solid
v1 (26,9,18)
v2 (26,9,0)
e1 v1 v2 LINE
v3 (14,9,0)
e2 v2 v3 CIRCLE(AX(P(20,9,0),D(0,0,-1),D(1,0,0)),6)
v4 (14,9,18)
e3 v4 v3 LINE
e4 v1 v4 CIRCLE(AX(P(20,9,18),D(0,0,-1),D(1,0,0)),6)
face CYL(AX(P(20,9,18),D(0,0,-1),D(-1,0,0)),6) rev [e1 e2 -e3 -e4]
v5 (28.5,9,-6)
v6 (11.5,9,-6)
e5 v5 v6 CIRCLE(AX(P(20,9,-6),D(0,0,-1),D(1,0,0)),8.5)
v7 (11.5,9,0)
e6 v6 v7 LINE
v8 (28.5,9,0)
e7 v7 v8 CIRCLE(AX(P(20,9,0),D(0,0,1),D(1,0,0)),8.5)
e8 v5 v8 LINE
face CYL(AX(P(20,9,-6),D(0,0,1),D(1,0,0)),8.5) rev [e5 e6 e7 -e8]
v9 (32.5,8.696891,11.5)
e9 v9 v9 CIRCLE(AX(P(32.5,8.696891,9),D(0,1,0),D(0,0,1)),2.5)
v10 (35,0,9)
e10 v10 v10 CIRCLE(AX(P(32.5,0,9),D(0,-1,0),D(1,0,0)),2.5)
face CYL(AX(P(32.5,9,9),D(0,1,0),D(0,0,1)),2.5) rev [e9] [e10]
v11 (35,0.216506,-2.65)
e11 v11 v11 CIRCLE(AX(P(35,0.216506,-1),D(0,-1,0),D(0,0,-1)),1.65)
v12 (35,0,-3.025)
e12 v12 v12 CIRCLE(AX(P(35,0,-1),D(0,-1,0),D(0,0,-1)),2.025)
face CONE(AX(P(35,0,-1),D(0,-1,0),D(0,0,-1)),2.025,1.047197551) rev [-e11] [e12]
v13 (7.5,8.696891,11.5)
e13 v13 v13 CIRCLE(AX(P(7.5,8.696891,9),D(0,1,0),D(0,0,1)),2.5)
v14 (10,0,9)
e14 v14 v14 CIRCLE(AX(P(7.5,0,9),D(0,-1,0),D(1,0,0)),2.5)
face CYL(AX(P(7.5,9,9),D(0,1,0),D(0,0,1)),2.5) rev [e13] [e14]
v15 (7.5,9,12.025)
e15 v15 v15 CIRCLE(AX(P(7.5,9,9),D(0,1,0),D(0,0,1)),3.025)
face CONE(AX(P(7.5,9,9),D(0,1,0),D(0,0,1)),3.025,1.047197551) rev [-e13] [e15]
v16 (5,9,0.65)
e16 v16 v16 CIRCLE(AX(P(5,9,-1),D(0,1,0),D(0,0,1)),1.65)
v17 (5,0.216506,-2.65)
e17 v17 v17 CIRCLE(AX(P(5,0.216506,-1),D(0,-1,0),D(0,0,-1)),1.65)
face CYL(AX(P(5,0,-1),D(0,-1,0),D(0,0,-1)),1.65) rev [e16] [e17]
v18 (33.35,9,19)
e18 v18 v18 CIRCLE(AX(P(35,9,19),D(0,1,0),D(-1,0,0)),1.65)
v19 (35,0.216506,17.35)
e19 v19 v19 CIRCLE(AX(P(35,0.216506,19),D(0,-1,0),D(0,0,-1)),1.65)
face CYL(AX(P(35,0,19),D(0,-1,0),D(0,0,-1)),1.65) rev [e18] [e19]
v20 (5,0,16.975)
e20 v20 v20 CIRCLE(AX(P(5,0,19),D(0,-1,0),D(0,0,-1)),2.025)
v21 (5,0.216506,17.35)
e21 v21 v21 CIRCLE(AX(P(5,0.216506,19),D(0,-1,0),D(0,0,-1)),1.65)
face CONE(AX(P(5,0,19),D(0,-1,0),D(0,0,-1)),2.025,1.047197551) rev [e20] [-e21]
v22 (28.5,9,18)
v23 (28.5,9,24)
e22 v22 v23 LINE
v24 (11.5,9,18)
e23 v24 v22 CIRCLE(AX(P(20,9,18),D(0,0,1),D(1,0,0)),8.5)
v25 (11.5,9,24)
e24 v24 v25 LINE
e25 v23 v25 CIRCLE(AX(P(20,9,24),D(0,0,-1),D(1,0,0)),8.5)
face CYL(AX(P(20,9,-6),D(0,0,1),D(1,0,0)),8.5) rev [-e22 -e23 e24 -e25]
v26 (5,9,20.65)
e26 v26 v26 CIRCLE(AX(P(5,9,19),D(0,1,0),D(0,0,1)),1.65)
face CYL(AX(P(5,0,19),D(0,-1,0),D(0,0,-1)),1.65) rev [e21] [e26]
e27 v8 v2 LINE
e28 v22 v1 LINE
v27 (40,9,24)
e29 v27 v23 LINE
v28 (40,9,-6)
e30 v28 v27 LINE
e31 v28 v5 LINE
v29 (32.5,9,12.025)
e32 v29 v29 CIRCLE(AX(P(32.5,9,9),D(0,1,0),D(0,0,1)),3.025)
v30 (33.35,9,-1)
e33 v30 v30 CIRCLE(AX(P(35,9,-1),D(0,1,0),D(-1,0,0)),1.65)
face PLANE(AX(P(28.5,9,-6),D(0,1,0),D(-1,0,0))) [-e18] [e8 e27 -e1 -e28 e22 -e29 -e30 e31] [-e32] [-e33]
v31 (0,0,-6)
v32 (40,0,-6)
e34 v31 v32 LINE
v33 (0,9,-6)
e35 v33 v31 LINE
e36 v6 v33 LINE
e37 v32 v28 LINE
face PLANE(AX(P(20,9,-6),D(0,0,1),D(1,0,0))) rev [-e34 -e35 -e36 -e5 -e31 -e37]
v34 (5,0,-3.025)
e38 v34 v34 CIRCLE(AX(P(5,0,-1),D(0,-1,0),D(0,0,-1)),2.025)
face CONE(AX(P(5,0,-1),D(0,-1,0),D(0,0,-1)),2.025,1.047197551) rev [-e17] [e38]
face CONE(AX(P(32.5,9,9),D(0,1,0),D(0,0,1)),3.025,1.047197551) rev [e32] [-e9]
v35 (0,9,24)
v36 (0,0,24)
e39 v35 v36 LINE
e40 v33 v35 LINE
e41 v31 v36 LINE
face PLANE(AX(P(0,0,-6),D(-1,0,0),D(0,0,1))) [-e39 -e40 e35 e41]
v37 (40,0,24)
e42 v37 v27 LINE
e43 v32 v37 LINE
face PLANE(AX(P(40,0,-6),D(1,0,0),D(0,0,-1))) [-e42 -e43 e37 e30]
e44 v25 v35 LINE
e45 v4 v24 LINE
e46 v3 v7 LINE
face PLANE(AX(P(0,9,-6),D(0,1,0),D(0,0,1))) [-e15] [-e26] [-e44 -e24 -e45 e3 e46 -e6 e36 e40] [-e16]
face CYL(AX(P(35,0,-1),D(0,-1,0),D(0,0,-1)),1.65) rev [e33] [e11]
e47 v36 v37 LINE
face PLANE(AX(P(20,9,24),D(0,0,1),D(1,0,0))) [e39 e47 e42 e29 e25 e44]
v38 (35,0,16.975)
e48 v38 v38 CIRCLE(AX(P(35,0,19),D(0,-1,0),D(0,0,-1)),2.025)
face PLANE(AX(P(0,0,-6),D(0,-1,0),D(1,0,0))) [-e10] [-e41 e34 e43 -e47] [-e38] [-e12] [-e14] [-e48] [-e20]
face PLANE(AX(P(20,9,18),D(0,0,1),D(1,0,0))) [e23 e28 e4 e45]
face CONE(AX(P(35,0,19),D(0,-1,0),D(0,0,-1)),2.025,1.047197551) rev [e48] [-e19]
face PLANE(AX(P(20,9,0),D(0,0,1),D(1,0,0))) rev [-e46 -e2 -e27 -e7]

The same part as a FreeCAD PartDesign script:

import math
import FreeCAD as App
import Part
import Sketcher

doc = App.newDocument("Part")
body = doc.addObject("PartDesign::Body", "Body")

# Sketch on XY plane
sketch1 = body.newObject("Sketcher::SketchObject", "Sketch")
sketch1.AttachmentSupport = (doc.getObject("XY_Plane"), [""])
sketch1.MapMode = "FlatFace"
sketch1.addGeometry(Part.LineSegment(App.Vector(40, 9, 0), App.Vector(28, 9, 0)), False)
sketch1.addGeometry(Part.ArcOfCircle(Part.Circle(App.Vector(20, 9, 0), App.Vector(0, 0, 1), 8), math.radians(180), math.radians(360)), False)
sketch1.addGeometry(Part.LineSegment(App.Vector(12, 9, 0), App.Vector(0, 9, 0)), False)
sketch1.addGeometry(Part.LineSegment(App.Vector(0, 9, 0), App.Vector(0, 0, 0)), False)
sketch1.addGeometry(Part.LineSegment(App.Vector(0, 0, 0), App.Vector(40, 0, 0)), False)
sketch1.addGeometry(Part.LineSegment(App.Vector(40, 0, 0), App.Vector(40, 9, 0)), False)
sketch1.addConstraint(Sketcher.Constraint("Coincident", 0, 2, 1, 2))
sketch1.addConstraint(Sketcher.Constraint("Coincident", 1, 1, 2, 1))
sketch1.addConstraint(Sketcher.Constraint("Coincident", 2, 2, 3, 1))
sketch1.addConstraint(Sketcher.Constraint("Coincident", 3, 2, 4, 1))
sketch1.addConstraint(Sketcher.Constraint("Coincident", 4, 2, 5, 1))
sketch1.addConstraint(Sketcher.Constraint("Coincident", 5, 2, 0, 1))
sketch1.addConstraint(Sketcher.Constraint("Horizontal", 0))
sketch1.addConstraint(Sketcher.Constraint("Horizontal", 2))
sketch1.addConstraint(Sketcher.Constraint("Vertical", 3))
sketch1.addConstraint(Sketcher.Constraint("Horizontal", 4))
sketch1.addConstraint(Sketcher.Constraint("Vertical", 5))
sketch1.addConstraint(Sketcher.Constraint("Coincident", 3, 2, -1, 1))
sketch1.addConstraint(Sketcher.Constraint("Horizontal", 1, 3, 0, 2))
sketch1.addConstraint(Sketcher.Constraint("Horizontal", 0, 2, 1, 1))
sketch1.addConstraint(Sketcher.Constraint("Equal", 0, 2))
sketch1.addConstraint(Sketcher.Constraint("Radius", 1, 8.5))
sketch1.addConstraint(Sketcher.Constraint("DistanceX", 4, 1, 4, 2, 40.0))
sketch1.addConstraint(Sketcher.Constraint("DistanceY", 3, 2, 3, 1, 9.0))
pad1 = body.newObject("PartDesign::Pad", "Pad")
pad1.Profile = sketch1
pad1.Type = "TwoLengths"
pad1.Length = 24
pad1.Length2 = 6

# Sketch on XY plane
sketch2 = body.newObject("Sketcher::SketchObject", "Sketch001")
sketch2.AttachmentSupport = (doc.getObject("XY_Plane"), [""])
sketch2.MapMode = "FlatFace"
sketch2.addGeometry(Part.LineSegment(App.Vector(14, 9, 0), App.Vector(11.5, 9, 0)), False)
sketch2.addGeometry(Part.ArcOfCircle(Part.Circle(App.Vector(20, 9, 0), App.Vector(0, 0, 1), 8.5), math.radians(180), math.radians(360)), False)
sketch2.addGeometry(Part.LineSegment(App.Vector(28.5, 9, 0), App.Vector(26, 9, 0)), False)
sketch2.addGeometry(Part.ArcOfCircle(Part.Circle(App.Vector(20, 9, 0), App.Vector(0, 0, 1), 6), math.radians(180), math.radians(360)), False)
sketch2.addConstraint(Sketcher.Constraint("Coincident", 0, 2, 1, 1))
sketch2.addConstraint(Sketcher.Constraint("Coincident", 1, 2, 2, 1))
sketch2.addConstraint(Sketcher.Constraint("Coincident", 2, 2, 3, 2))
sketch2.addConstraint(Sketcher.Constraint("Coincident", 3, 1, 0, 1))
sketch2.addConstraint(Sketcher.Constraint("Horizontal", 0))
sketch2.addConstraint(Sketcher.Constraint("Horizontal", 2))
sketch2.addConstraint(Sketcher.Constraint("Coincident", 3, 3, 1, 3))
sketch2.addConstraint(Sketcher.Constraint("Horizontal", 3, 3, 0, 2))
sketch2.addConstraint(Sketcher.Constraint("Horizontal", 0, 2, 1, 2))
sketch2.addConstraint(Sketcher.Constraint("Radius", 3, 6.0))
sketch2.addConstraint(Sketcher.Constraint("Radius", 1, 8.5))
sketch2.addConstraint(Sketcher.Constraint("DistanceX", -1, 1, 1, 3, 20.0))
sketch2.addConstraint(Sketcher.Constraint("DistanceY", -1, 1, 1, 3, 9.0))
pad2 = body.newObject("PartDesign::Pad", "Pad001")
pad2.Profile = sketch2
pad2.Length = 18

# Sketch on XZ plane
sketch3 = body.newObject("Sketcher::SketchObject", "Sketch002")
sketch3.AttachmentSupport = (doc.getObject("XZ_Plane"), [""])
sketch3.MapMode = "FlatFace"
sketch3.addGeometry(Part.Circle(App.Vector(35, 19, 0), App.Vector(0, 0, 1), 1.6), False)
sketch3.addGeometry(Part.Circle(App.Vector(35, -1, 0), App.Vector(0, 0, 1), 1.6), False)
sketch3.addGeometry(Part.Circle(App.Vector(5, 19, 0), App.Vector(0, 0, 1), 1.6), False)
sketch3.addGeometry(Part.Circle(App.Vector(5, -1, 0), App.Vector(0, 0, 1), 1.6), False)
sketch3.addConstraint(Sketcher.Constraint("Equal", 0, 1))
sketch3.addConstraint(Sketcher.Constraint("Equal", 1, 2))
sketch3.addConstraint(Sketcher.Constraint("Equal", 2, 3))
sketch3.addConstraint(Sketcher.Constraint("Horizontal", 0, 3, 2, 3))
sketch3.addConstraint(Sketcher.Constraint("Horizontal", 1, 3, 3, 3))
sketch3.addConstraint(Sketcher.Constraint("Vertical", 0, 3, 1, 3))
sketch3.addConstraint(Sketcher.Constraint("Vertical", 2, 3, 3, 3))
sketch3.addConstraint(Sketcher.Constraint("Diameter", 0, 3.3))
sketch3.addConstraint(Sketcher.Constraint("DistanceX", -1, 1, 0, 3, 35.0))
sketch3.addConstraint(Sketcher.Constraint("DistanceY", -1, 1, 0, 3, 19.0))
sketch3.addConstraint(Sketcher.Constraint("DistanceY", 1, 3, -1, 1, 1.0))
sketch3.addConstraint(Sketcher.Constraint("DistanceX", -1, 1, 2, 3, 5.0))
doc.recompute()
hole = body.newObject("PartDesign::Hole", "Hole")
hole.Profile = sketch3
hole.ThreadType = "None"
hole.Diameter = 3.3
hole.DepthType = "Dimension"
hole.Depth = 11.5
hole.DrillPoint = "Angled"
hole.DrillPointAngle = 118
hole.HoleCutType = "Countersink"
hole.HoleCutDiameter = 4.05
hole.HoleCutCountersinkAngle = 120

# Sketch on XZ plane
sketch4 = body.newObject("Sketcher::SketchObject", "Sketch003")
sketch4.AttachmentSupport = (doc.getObject("XZ_Plane"), [""])
sketch4.MapMode = "FlatFace"
sketch4.AttachmentOffset = App.Placement(App.Vector(0, 0, -9), App.Rotation())
sketch4.addGeometry(Part.Circle(App.Vector(32.5, 9, 0), App.Vector(0, 0, 1), 2.5), False)
sketch4.addGeometry(Part.Circle(App.Vector(7.5, 9, 0), App.Vector(0, 0, 1), 2.5), False)
sketch4.addConstraint(Sketcher.Constraint("Equal", 0, 1))
sketch4.addConstraint(Sketcher.Constraint("Horizontal", 0, 3, 1, 3))
sketch4.addConstraint(Sketcher.Constraint("Diameter", 0, 5.0))
sketch4.addConstraint(Sketcher.Constraint("DistanceY", -1, 1, 0, 3, 9.0))
sketch4.addConstraint(Sketcher.Constraint("DistanceX", 1, 3, 0, 3, 25.0))
sketch4.addConstraint(Sketcher.Constraint("DistanceX", -1, 1, 0, 3, 32.5))
doc.recompute()
hole2 = body.newObject("PartDesign::Hole", "Hole001")
hole2.Profile = sketch4
hole2.ThreadType = "None"
hole2.Diameter = 5
hole2.DepthType = "Dimension"
hole2.Depth = 17
hole2.DrillPoint = "Angled"
hole2.DrillPointAngle = 118
hole2.HoleCutType = "Countersink"
hole2.HoleCutDiameter = 6.05
hole2.HoleCutCountersinkAngle = 120
hole2.Reversed = True

doc.recompute()
